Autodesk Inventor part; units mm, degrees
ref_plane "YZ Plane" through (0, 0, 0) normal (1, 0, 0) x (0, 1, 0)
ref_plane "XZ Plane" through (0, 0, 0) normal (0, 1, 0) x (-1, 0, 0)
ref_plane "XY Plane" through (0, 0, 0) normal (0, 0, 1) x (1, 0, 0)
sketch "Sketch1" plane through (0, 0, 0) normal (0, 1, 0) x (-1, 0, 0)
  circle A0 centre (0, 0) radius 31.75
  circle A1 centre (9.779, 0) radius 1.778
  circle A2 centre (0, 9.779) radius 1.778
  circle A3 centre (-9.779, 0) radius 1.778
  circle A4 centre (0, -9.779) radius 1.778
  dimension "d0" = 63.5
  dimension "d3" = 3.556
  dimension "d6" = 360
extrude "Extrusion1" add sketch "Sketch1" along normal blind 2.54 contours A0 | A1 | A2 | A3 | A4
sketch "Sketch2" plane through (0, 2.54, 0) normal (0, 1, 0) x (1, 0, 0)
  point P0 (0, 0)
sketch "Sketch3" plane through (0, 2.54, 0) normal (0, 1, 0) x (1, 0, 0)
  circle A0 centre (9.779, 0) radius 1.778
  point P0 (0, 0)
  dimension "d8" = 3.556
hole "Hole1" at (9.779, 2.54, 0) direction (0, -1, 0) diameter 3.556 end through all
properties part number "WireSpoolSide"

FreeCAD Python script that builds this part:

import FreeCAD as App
import Part
import Sketcher

V = App.Vector
Q = App.Units.Quantity

doc = App.newDocument("Part")
body = doc.addObject("PartDesign::Body", "Body")

# Sketch on XZ plane
sketch1 = body.newObject("Sketcher::SketchObject", "Sketch")
sketch1.AttachmentSupport = (doc.getObject("XZ_Plane"), [""])
sketch1.MapMode = "FlatFace"
sketch1.addGeometry(Part.Circle(V(0, 0, 0), V(0, 0, 1), 32), False)
sketch1.addConstraint(Sketcher.Constraint("Coincident", 0, 3, -1, 1))
sketch1.addConstraint(Sketcher.Constraint("Diameter", 0, Q("2.5 in")))
pad1 = body.newObject("PartDesign::Pad", "Pad")
pad1.Profile = sketch1
pad1.Length = Q("0.1 in")
pad1.Reversed = True

# Sketch on XZ plane
sketch2 = body.newObject("Sketcher::SketchObject", "Sketch001")
sketch2.AttachmentSupport = (doc.getObject("XZ_Plane"), [""])
sketch2.MapMode = "FlatFace"
sketch2.AttachmentOffset = App.Placement(V(0, 0, -0.1 * 25.4), App.Rotation())
sketch2.addGeometry(Part.Circle(V(9.8, 0, 0), V(0, 0, 1), 1.8), False)
sketch2.addConstraint(Sketcher.Constraint("PointOnObject", 0, 3, -1))
sketch2.addConstraint(Sketcher.Constraint("Diameter", 0, Q("0.14 in")))
sketch2.addConstraint(Sketcher.Constraint("DistanceX", -1, 1, 0, 3, Q("0.385 in")))
doc.recompute()
hole = body.newObject("PartDesign::Hole", "Hole")
hole.Profile = sketch2
hole.ThreadType = "None"
hole.Diameter = Q("0.14 in")
hole.DepthType = "ThroughAll"
hole.Reversed = True

doc.recompute()
